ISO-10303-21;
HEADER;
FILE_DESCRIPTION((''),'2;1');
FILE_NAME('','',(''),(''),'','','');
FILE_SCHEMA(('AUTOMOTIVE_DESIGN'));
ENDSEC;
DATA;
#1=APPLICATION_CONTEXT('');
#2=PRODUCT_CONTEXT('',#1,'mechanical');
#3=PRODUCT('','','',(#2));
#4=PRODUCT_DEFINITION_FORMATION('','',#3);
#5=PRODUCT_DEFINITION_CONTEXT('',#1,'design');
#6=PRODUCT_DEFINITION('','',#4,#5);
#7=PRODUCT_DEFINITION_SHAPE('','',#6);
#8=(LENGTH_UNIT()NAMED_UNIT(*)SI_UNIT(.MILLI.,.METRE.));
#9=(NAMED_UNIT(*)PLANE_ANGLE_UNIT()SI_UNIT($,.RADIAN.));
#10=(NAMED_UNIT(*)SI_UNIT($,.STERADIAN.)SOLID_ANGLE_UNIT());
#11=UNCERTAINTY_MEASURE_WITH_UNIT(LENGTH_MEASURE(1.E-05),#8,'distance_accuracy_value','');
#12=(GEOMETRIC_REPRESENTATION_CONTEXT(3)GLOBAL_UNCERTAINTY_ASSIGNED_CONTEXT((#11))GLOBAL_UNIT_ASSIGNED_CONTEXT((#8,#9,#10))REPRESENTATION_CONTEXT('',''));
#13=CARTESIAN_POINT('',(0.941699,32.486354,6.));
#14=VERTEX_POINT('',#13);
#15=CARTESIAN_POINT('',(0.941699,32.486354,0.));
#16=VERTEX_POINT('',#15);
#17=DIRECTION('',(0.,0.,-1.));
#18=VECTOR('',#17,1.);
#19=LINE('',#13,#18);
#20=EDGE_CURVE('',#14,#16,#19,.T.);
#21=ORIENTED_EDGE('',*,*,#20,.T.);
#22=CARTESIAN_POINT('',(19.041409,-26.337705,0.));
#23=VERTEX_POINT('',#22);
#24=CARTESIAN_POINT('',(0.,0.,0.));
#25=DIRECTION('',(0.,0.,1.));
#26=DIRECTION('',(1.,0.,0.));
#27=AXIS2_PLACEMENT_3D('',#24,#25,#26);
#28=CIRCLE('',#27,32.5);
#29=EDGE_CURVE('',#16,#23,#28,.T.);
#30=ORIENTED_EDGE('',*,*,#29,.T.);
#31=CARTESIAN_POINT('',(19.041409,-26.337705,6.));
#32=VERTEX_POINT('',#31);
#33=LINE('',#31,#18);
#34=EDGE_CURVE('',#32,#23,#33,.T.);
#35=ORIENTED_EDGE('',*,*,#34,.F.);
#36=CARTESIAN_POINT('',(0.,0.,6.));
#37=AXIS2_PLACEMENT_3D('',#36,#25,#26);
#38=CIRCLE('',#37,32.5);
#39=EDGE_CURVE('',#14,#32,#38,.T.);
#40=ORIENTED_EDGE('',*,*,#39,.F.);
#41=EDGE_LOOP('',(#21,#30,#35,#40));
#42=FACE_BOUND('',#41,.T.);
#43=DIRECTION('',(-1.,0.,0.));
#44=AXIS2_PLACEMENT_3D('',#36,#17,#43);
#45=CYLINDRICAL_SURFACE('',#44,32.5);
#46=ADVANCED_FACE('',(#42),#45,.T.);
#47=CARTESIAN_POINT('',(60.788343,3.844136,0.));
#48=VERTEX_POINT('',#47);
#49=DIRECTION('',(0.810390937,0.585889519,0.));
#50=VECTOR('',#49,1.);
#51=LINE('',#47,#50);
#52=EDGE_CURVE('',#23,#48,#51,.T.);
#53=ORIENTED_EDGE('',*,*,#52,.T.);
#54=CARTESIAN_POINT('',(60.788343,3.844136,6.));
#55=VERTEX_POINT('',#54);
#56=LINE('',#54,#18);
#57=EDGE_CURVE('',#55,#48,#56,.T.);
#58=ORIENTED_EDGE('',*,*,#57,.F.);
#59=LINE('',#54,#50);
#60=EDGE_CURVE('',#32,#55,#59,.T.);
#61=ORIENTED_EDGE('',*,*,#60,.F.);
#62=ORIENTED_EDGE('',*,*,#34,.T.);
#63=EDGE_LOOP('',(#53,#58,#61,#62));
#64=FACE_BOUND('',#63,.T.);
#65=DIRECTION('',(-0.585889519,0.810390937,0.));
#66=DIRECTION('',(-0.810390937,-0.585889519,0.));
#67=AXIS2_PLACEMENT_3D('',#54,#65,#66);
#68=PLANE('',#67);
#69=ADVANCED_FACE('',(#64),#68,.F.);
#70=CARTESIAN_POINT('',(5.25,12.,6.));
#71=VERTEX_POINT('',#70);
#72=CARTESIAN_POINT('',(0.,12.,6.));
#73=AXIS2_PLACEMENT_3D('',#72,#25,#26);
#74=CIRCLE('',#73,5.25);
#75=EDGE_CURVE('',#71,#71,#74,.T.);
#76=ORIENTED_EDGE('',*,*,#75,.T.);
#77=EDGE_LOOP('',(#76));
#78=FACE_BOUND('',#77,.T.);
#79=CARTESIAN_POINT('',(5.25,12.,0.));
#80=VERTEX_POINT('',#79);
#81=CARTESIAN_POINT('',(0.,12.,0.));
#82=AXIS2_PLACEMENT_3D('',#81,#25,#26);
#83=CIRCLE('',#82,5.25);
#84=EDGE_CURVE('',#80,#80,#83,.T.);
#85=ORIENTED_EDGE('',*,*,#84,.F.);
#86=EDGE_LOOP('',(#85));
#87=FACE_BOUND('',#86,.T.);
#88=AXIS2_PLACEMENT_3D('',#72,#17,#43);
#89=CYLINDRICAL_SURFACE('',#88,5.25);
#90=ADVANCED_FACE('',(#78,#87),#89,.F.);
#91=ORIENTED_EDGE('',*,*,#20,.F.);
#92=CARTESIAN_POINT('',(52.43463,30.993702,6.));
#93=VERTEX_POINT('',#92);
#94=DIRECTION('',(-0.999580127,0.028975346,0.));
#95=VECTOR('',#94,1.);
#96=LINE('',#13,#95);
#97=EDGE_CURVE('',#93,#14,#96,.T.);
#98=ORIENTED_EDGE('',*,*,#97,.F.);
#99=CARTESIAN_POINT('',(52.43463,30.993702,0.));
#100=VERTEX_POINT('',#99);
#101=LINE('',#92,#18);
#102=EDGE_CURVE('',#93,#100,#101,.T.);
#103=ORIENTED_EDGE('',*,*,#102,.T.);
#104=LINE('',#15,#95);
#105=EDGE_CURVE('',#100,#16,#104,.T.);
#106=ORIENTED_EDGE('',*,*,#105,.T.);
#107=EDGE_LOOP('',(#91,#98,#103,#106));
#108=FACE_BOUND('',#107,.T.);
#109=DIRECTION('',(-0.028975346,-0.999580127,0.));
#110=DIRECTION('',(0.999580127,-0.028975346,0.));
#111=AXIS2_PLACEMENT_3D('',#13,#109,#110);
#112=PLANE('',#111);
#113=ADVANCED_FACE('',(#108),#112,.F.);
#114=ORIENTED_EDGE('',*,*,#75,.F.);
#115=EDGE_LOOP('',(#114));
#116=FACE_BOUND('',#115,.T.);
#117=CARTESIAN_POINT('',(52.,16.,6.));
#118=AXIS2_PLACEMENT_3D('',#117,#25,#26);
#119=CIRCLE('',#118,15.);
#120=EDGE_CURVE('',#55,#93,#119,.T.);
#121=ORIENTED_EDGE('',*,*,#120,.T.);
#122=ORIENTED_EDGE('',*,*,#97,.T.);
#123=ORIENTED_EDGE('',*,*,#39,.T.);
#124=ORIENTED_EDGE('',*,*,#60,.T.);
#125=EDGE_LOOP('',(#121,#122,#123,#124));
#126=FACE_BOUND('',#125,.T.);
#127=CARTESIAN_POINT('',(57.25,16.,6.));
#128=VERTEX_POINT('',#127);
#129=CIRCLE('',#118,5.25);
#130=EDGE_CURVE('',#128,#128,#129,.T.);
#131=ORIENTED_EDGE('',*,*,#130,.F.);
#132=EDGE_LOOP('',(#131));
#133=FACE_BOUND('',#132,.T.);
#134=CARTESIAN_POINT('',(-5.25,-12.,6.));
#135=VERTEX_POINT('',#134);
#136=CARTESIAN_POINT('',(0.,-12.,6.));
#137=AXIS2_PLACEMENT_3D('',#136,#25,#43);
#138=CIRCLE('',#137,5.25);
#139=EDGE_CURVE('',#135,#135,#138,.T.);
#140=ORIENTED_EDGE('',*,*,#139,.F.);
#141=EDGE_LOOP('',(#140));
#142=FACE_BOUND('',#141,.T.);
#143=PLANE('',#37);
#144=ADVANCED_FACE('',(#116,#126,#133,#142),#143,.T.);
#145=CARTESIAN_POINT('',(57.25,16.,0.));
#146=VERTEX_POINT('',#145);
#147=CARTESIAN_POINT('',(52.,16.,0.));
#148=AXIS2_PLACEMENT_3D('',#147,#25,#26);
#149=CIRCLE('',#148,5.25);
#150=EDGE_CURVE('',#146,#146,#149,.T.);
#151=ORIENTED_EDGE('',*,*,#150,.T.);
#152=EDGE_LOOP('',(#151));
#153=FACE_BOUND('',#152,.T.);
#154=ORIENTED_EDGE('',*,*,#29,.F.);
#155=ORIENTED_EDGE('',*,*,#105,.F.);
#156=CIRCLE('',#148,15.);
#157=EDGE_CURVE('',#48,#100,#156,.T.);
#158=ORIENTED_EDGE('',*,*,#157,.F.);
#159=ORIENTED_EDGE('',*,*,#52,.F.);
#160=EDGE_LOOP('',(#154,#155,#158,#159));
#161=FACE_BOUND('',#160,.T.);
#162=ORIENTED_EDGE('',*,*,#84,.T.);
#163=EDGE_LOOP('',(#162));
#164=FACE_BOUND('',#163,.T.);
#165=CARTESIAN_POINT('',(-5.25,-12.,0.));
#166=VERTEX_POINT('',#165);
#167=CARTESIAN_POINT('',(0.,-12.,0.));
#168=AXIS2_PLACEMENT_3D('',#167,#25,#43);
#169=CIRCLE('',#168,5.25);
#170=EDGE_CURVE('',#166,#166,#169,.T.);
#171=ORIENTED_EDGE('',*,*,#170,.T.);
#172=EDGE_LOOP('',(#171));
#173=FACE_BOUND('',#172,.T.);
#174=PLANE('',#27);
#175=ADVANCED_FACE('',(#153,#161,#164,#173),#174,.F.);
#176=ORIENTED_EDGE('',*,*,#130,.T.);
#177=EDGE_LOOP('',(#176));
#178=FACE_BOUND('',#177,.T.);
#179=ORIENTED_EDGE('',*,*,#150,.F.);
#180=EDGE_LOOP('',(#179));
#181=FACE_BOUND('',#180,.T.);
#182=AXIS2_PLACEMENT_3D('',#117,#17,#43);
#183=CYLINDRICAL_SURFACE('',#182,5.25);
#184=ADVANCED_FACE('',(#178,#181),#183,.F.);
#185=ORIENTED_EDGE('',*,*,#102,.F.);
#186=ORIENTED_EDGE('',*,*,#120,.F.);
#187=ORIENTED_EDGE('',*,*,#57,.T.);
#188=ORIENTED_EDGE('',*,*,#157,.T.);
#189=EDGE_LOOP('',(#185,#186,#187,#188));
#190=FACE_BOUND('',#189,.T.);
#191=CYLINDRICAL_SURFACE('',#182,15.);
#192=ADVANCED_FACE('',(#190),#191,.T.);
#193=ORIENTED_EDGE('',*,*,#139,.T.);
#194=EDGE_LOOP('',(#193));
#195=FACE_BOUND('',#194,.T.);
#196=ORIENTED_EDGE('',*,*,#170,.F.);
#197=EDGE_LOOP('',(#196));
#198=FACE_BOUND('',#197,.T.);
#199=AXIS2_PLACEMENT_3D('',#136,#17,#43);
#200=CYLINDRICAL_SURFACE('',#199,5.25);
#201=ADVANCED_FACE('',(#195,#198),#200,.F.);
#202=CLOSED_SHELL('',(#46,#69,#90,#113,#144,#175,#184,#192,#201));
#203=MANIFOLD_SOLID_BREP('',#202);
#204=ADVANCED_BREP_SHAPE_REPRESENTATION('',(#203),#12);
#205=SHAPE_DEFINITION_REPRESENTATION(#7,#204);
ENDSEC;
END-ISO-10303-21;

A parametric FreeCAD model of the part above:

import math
import FreeCAD as App
import Part
import Sketcher
from FreeCAD import Vector

doc = App.newDocument("Part")
body = doc.addObject("PartDesign::Body", "Body")

sketch1 = doc.addObject("Sketcher::SketchObject", "Sketch")
body.addObject(sketch1)
sketch1.AttachmentSupport = (doc.XY_Plane, [""])
sketch1.MapMode = "FlatFace"
sketch1.addGeometry(Part.LineSegment(Vector(52.43463, 30.993702, 0), Vector(0.941699, 32.486354, 0)), False)
sketch1.addGeometry(Part.ArcOfCircle(Part.Circle(Vector(0, 0, 0), Vector(0, 0, 1), 32.5), math.radians(88.339603), math.radians(305.865855)), False)
sketch1.addGeometry(Part.LineSegment(Vector(19.041409, -26.337705, 0), Vector(60.788343, 3.844136, 0)), False)
sketch1.addGeometry(Part.ArcOfCircle(Part.Circle(Vector(52, 16, 0), Vector(0, 0, 1), 15), math.radians(-54.134145), math.radians(88.339603)), False)
sketch1.addGeometry(Part.Circle(Vector(0, -12, 0), Vector(0, 0, 1), 5.25), False)
sketch1.addGeometry(Part.Circle(Vector(52, 16, 0), Vector(0, 0, 1), 5.25), False)
sketch1.addGeometry(Part.Circle(Vector(0, 12, 0), Vector(0, 0, 1), 5.25), False)
sketch1.addConstraint(Sketcher.Constraint("Tangent", 0, 2, 1, 1))
sketch1.addConstraint(Sketcher.Constraint("Tangent", 1, 2, 2, 1))
sketch1.addConstraint(Sketcher.Constraint("Tangent", 2, 2, 3, 1))
sketch1.addConstraint(Sketcher.Constraint("Tangent", 3, 2, 0, 1))
sketch1.addConstraint(Sketcher.Constraint("Coincident", 1, 3, -1, 1))
sketch1.addConstraint(Sketcher.Constraint("Coincident", 5, 3, 3, 3))
sketch1.addConstraint(Sketcher.Constraint("Equal", 4, 5))
sketch1.addConstraint(Sketcher.Constraint("Equal", 5, 6))
sketch1.addConstraint(Sketcher.Constraint("Symmetric", 4, 3, 6, 3, -1, 1))
sketch1.addConstraint(Sketcher.Constraint("PointOnObject", 4, 3, -2))
sketch1.addConstraint(Sketcher.Constraint("Radius", 3, 15.0))
sketch1.addConstraint(Sketcher.Constraint("Diameter", 4, 10.5))
sketch1.addConstraint(Sketcher.Constraint("Radius", 1, 32.5))
sketch1.addConstraint(Sketcher.Constraint("DistanceX", -1, 1, 3, 3, 52.0))
sketch1.addConstraint(Sketcher.Constraint("DistanceY", -1, 1, 3, 3, 16.0))
sketch1.addConstraint(Sketcher.Constraint("DistanceY", 4, 3, -1, 1, 12.0))
pad1 = doc.addObject("PartDesign::Pad", "Pad")
body.addObject(pad1)
pad1.Profile = sketch1
pad1.Length = 6

doc.recompute()
